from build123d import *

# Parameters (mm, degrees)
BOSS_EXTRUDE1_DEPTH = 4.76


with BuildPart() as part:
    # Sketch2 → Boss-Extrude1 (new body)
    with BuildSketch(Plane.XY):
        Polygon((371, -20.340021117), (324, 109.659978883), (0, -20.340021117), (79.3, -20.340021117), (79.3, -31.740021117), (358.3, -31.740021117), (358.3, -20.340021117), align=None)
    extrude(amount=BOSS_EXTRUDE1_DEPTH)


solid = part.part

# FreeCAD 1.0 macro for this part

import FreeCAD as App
import Part
import Sketcher
from FreeCAD import Vector
Q = App.Units.Quantity


def add_polygon(sketch, points):
    """Adds a closed chain of lines whose ends are joined by coincident constraints."""
    first, n = sketch.GeometryCount, len(points)
    for a, b in zip(points, points[1:] + points[:1]):
        sketch.addGeometry(Part.LineSegment(App.Vector(*a, 0), App.Vector(*b, 0)), False)
    for i in range(n):
        sketch.addConstraint(Sketcher.Constraint("Coincident", first + i, 2, first + (i + 1) % n, 1))

doc = App.newDocument("Part")
body = doc.addObject("PartDesign::Body", "Body")

sketch1 = doc.addObject("Sketcher::SketchObject", "Sketch")
body.addObject(sketch1)
sketch1.AttachmentSupport = (doc.XY_Plane, [""])
sketch1.MapMode = "FlatFace"
add_polygon(sketch1, [(371, -20.340021), (324, 109.659979), (0, -20.340021), (79.3, -20.340021), (79.3, -31.740021), (358.3, -31.740021), (358.3, -20.340021)])
sketch1.addConstraint([
    Sketcher.Constraint("Horizontal", 2),
    Sketcher.Constraint("Vertical", 3),
    Sketcher.Constraint("Horizontal", 4),
    Sketcher.Constraint("Vertical", 5),
    Sketcher.Constraint("Horizontal", 6),
    Sketcher.Constraint("PointOnObject", 1, 2, -2),
    Sketcher.Constraint("Horizontal", 2, 2, 5, 2),
    Sketcher.Constraint("DistanceX", 4, 1, 4, 2, Q("279 mm")),
    Sketcher.Constraint("DistanceX", 2, 1, 2, 2, Q("79.3 mm")),
    Sketcher.Constraint("DistanceX", 6, 1, 6, 2, Q("12.7 mm")),
    Sketcher.Constraint("DistanceY", 3, 2, 3, 1, Q("11.4 mm")),
    Sketcher.Constraint("DistanceX", -1, 1, 0, 2, Q("324 mm")),
    Sketcher.Constraint("DistanceY", 1, 2, 0, 2, Q("130 mm")),
    Sketcher.Constraint("DistanceY", -1, 1, 0, 2, Q("109.659979 mm")),
])
pad1 = doc.addObject("PartDesign::Pad", "Pad")
body.addObject(pad1)
pad1.Profile = sketch1
pad1.Length = 4.76

doc.recompute()
